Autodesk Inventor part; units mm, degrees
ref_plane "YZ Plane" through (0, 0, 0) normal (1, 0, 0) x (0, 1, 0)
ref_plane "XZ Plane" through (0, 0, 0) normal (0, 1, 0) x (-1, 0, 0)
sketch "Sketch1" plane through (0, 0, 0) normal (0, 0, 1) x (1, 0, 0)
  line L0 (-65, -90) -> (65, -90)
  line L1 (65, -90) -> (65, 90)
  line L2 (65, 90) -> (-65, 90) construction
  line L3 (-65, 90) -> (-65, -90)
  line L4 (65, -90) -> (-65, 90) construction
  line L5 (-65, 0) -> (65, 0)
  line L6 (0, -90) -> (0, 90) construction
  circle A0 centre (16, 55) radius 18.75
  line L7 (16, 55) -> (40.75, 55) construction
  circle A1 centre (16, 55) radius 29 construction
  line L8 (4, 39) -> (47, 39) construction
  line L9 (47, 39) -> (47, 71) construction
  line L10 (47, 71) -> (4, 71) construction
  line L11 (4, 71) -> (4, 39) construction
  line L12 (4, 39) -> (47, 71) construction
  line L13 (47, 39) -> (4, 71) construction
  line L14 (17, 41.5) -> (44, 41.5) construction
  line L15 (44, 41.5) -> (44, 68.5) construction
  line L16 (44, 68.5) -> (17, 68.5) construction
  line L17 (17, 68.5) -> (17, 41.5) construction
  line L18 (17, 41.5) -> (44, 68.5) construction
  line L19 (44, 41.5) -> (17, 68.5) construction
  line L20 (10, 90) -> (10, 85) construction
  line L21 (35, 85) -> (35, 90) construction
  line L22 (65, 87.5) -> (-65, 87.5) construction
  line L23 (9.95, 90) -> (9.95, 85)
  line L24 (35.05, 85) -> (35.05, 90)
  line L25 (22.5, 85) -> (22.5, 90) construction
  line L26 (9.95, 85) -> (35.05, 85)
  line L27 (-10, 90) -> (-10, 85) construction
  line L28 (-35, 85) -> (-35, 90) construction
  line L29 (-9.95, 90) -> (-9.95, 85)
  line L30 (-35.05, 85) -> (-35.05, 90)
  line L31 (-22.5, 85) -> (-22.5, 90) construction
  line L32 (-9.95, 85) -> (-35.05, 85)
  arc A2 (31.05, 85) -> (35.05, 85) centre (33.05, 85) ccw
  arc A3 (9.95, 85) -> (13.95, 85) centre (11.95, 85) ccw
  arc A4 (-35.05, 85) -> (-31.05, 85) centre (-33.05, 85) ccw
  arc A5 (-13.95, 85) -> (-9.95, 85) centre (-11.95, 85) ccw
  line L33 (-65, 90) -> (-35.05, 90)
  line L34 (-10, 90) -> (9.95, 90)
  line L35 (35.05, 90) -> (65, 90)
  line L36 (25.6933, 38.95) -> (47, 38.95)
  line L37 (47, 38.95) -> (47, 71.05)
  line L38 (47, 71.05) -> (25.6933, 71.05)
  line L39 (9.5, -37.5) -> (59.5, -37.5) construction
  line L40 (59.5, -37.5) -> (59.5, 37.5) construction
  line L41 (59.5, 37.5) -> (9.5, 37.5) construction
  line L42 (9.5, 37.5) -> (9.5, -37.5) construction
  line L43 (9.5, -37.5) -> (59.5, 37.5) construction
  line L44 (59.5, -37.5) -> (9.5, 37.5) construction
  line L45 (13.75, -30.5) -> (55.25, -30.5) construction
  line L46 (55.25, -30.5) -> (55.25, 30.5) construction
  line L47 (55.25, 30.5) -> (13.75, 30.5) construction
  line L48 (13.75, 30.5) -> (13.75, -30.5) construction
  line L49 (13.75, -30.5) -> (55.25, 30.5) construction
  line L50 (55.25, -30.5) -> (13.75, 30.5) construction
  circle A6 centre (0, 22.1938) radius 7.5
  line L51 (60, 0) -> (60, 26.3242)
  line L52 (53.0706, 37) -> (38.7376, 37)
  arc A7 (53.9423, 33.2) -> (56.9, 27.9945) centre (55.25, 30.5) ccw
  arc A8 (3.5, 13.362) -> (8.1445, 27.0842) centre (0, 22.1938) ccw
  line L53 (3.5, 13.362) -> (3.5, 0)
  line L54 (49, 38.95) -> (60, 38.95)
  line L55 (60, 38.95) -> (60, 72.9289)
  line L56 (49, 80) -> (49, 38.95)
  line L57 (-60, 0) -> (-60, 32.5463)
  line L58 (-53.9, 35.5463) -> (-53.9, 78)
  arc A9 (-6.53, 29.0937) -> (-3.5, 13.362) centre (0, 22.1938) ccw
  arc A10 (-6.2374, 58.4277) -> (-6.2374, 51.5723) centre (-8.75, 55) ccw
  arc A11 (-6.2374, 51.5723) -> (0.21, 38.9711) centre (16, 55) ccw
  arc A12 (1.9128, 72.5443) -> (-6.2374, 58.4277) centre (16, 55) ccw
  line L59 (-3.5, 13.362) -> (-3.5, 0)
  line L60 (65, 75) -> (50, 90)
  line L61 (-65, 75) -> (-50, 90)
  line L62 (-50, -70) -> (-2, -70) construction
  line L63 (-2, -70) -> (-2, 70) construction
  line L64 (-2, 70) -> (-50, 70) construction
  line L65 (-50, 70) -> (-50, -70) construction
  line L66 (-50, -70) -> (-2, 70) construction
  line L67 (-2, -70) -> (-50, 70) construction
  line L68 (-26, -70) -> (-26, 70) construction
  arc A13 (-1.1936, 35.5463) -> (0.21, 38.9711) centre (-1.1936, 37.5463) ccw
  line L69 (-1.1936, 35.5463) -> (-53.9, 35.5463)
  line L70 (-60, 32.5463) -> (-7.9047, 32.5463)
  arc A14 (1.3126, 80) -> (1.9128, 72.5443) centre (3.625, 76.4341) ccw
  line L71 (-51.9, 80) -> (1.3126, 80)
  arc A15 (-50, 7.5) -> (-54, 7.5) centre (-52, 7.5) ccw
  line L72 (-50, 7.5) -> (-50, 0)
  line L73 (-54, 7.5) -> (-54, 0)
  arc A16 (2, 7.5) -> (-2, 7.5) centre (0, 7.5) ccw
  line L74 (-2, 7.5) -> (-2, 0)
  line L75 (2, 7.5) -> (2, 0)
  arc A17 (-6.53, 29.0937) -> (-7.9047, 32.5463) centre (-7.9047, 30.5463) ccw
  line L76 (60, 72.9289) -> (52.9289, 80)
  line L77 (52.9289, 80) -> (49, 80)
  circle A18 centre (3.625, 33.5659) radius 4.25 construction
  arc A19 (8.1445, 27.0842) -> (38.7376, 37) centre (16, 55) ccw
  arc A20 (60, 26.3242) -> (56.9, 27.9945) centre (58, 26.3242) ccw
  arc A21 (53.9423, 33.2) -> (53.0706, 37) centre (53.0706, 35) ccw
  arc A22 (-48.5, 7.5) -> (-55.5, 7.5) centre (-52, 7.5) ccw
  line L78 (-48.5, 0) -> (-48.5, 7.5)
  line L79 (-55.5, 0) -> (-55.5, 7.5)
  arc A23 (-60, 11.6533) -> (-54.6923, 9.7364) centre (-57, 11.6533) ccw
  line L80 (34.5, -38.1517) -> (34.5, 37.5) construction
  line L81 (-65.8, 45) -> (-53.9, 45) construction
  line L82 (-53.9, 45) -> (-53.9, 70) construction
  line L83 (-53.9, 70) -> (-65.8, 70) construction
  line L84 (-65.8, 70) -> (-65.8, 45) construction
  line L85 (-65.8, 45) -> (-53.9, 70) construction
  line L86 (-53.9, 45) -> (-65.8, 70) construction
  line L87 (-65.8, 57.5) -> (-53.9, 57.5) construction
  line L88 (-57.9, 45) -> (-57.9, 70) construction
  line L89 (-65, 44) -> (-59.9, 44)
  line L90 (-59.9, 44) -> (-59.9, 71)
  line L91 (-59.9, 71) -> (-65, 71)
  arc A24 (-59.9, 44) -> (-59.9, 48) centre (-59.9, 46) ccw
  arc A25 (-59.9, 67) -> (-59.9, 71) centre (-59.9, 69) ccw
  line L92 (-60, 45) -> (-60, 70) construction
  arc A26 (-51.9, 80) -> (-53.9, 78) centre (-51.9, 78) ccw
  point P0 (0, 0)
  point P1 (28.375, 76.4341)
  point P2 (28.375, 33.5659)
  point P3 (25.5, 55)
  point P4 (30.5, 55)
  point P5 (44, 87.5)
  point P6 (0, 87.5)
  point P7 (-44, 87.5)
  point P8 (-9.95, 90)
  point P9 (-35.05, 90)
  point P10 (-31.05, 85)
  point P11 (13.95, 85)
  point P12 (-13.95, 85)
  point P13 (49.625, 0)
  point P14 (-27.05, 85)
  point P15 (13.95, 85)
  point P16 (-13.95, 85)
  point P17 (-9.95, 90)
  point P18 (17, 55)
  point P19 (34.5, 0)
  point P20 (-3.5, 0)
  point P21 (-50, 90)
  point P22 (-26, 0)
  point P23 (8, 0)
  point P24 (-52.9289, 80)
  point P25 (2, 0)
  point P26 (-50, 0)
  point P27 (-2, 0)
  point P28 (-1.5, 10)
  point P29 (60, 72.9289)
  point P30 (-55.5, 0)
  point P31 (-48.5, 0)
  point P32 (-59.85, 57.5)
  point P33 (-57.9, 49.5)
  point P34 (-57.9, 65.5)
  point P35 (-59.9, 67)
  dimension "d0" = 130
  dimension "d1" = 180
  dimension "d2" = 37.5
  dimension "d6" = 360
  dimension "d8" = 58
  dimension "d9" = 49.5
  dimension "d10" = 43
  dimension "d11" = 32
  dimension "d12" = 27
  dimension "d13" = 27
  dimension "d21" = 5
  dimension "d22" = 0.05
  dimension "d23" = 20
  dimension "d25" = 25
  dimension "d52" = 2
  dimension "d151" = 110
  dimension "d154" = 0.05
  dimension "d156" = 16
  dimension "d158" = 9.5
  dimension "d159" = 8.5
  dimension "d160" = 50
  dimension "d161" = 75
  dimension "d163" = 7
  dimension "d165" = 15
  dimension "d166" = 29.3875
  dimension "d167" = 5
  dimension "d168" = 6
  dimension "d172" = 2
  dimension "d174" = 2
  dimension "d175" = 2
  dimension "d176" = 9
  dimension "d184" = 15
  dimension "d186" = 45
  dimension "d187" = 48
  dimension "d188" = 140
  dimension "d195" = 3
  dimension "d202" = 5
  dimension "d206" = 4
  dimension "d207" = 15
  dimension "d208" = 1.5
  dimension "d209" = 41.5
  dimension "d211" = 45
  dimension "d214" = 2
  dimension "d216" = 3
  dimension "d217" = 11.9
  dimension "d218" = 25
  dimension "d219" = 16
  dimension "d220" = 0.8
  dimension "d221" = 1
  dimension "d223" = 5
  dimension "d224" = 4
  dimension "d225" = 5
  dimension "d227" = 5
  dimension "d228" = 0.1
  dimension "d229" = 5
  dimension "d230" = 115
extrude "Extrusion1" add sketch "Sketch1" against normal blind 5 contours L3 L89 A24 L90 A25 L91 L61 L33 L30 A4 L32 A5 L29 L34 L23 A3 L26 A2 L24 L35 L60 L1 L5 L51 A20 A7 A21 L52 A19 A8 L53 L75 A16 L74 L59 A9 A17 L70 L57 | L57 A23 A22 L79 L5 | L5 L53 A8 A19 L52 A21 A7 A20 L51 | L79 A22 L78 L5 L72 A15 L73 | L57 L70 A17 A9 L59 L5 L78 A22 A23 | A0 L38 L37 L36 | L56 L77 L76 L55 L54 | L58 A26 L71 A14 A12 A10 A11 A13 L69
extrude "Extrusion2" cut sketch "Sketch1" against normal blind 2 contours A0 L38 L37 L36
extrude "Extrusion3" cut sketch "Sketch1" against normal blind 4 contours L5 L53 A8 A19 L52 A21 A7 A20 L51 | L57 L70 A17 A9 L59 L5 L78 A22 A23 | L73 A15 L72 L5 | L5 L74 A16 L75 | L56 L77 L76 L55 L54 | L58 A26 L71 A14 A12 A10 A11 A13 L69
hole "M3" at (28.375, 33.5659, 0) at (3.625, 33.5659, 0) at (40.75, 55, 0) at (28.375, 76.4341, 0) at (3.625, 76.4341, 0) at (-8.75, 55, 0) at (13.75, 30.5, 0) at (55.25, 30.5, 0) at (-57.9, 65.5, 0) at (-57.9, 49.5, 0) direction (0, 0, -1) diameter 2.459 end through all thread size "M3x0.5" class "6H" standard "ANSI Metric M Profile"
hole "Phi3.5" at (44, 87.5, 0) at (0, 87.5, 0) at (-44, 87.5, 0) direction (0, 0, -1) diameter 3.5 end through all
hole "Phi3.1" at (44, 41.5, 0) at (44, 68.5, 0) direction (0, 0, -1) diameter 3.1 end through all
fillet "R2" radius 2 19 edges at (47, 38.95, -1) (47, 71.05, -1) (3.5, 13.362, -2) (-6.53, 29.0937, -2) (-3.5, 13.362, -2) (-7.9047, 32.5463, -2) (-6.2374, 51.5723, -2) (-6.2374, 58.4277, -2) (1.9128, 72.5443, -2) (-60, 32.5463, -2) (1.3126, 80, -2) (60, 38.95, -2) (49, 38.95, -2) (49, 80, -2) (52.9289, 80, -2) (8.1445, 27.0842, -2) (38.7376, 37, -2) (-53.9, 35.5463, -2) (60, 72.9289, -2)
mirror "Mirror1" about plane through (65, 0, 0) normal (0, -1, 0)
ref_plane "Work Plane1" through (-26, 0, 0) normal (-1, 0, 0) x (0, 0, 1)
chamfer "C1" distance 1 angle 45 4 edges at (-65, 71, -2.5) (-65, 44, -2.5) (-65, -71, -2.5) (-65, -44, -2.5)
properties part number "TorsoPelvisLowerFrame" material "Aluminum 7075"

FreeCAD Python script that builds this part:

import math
import FreeCAD as App
import Part
import Sketcher
from FreeCAD import Vector
Q = App.Units.Quantity


def edges_at(feature, points):
    """Names of the edges that pass closest to the given points."""
    edges = feature.Shape.Edges
    near = lambda p: min(range(len(edges)), key=lambda i: edges[i].distToShape(Part.Vertex(*p))[0])
    return sorted({f"Edge{near(p) + 1}" for p in points})


def add_polygon(sketch, points):
    """Adds a closed chain of lines whose ends are joined by coincident constraints."""
    first, n = sketch.GeometryCount, len(points)
    for a, b in zip(points, points[1:] + points[:1]):
        sketch.addGeometry(Part.LineSegment(App.Vector(*a, 0), App.Vector(*b, 0)), False)
    for i in range(n):
        sketch.addConstraint(Sketcher.Constraint("Coincident", first + i, 2, first + (i + 1) % n, 1))

doc = App.newDocument("Part")
body = doc.addObject("PartDesign::Body", "Body")

# Sketch on XY plane
sketch1 = body.newObject("Sketcher::SketchObject", "Sketch")
sketch1.AttachmentSupport = (doc.getObject("XY_Plane"), [""])
sketch1.MapMode = "FlatFace"
sketch1.addGeometry([
    Part.LineSegment(Vector(-65, 44, 0), Vector(-65, 0, 0)),  # 0
    Part.LineSegment(Vector(-65, 0, 0), Vector(-54, 0, 0)),  # 1
    Part.LineSegment(Vector(-54, 0, 0), Vector(-54, 7.5, 0)),  # 2
    Part.ArcOfCircle(Part.Circle(Vector(-52, 7.5, 0), Vector(0, 0, 1), 2), math.radians(0), math.radians(180)),  # 3
    Part.LineSegment(Vector(-50, 7.5, 0), Vector(-50, 0, 0)),  # 4
    Part.LineSegment(Vector(-50, 0, 0), Vector(-2, 0, 0)),  # 5
    Part.LineSegment(Vector(-2, 0, 0), Vector(-2, 7.5, 0)),  # 6
    Part.ArcOfCircle(Part.Circle(Vector(0, 7.5, 0), Vector(0, 0, 1), 2), math.radians(0), math.radians(180)),  # 7
    Part.LineSegment(Vector(2, 7.5, 0), Vector(2, 0, 0)),  # 8
    Part.LineSegment(Vector(2, 0, 0), Vector(65, 0, 0)),  # 9
    Part.LineSegment(Vector(65, 0, 0), Vector(65, 75, 0)),  # 10
    Part.LineSegment(Vector(65, 75, 0), Vector(50, 90, 0)),  # 11
    Part.LineSegment(Vector(50, 90, 0), Vector(35, 90, 0)),  # 12
    Part.LineSegment(Vector(35, 90, 0), Vector(35, 85, 0)),  # 13
    Part.ArcOfCircle(Part.Circle(Vector(33, 85, 0), Vector(0, 0, 1), 2), math.radians(180), math.radians(360)),  # 14
    Part.LineSegment(Vector(31.1, 85, 0), Vector(13.9, 85, 0)),  # 15
    Part.ArcOfCircle(Part.Circle(Vector(11.9, 85, 0), Vector(0, 0, 1), 2), math.radians(180), math.radians(360)),  # 16
    Part.LineSegment(Vector(9.9, 85, 0), Vector(9.9, 90, 0)),  # 17
    Part.LineSegment(Vector(9.9, 90, 0), Vector(-9.9, 90, 0)),  # 18
    Part.LineSegment(Vector(-9.9, 90, 0), Vector(-9.9, 85, 0)),  # 19
    Part.ArcOfCircle(Part.Circle(Vector(-11.9, 85, 0), Vector(0, 0, 1), 2), math.radians(180), math.radians(360)),  # 20
    Part.LineSegment(Vector(-13.9, 85, 0), Vector(-31.1, 85, 0)),  # 21
    Part.ArcOfCircle(Part.Circle(Vector(-33, 85, 0), Vector(0, 0, 1), 2), math.radians(180), math.radians(360)),  # 22
    Part.LineSegment(Vector(-35, 85, 0), Vector(-35, 90, 0)),  # 23
    Part.LineSegment(Vector(-35, 90, 0), Vector(-50, 90, 0)),  # 24
    Part.LineSegment(Vector(-50, 90, 0), Vector(-65, 75, 0)),  # 25
    Part.LineSegment(Vector(-65, 75, 0), Vector(-65, 71, 0)),  # 26
    Part.LineSegment(Vector(-65, 71, 0), Vector(-59.9, 71, 0)),  # 27
    Part.ArcOfCircle(Part.Circle(Vector(-59.9, 69, 0), Vector(0, 0, 1), 2), math.radians(-90), math.radians(90)),  # 28
    Part.LineSegment(Vector(-59.9, 67, 0), Vector(-59.9, 48, 0)),  # 29
    Part.ArcOfCircle(Part.Circle(Vector(-59.9, 46, 0), Vector(0, 0, 1), 2), math.radians(-90), math.radians(90)),  # 30
    Part.LineSegment(Vector(-59.9, 44, 0), Vector(-65, 44, 0)),  # 31
    Part.Circle(Vector(0, 22.2, 0), Vector(0, 0, 1), 7.5),  # 32
    Part.Circle(Vector(16, 55, 0), Vector(0, 0, 1), 18.8),  # 33
], False)
sketch1.addConstraint([
    Sketcher.Constraint("Coincident", 0, 2, 1, 1),
    Sketcher.Constraint("Coincident", 1, 2, 2, 1),
    Sketcher.Constraint("Tangent", 2, 2, 3, 2),
    Sketcher.Constraint("Tangent", 3, 1, 4, 1),
    Sketcher.Constraint("Coincident", 4, 2, 5, 1),
    Sketcher.Constraint("Coincident", 5, 2, 6, 1),
    Sketcher.Constraint("Tangent", 6, 2, 7, 2),
    Sketcher.Constraint("Tangent", 7, 1, 8, 1),
    Sketcher.Constraint("Coincident", 8, 2, 9, 1),
    Sketcher.Constraint("Coincident", 9, 2, 10, 1),
    Sketcher.Constraint("Coincident", 10, 2, 11, 1),
    Sketcher.Constraint("Coincident", 11, 2, 12, 1),
    Sketcher.Constraint("Coincident", 12, 2, 13, 1),
    Sketcher.Constraint("Tangent", 13, 2, 14, 2),
    Sketcher.Constraint("Coincident", 14, 1, 15, 1),
    Sketcher.Constraint("Coincident", 15, 2, 16, 2),
    Sketcher.Constraint("Tangent", 16, 1, 17, 1),
    Sketcher.Constraint("Coincident", 17, 2, 18, 1),
    Sketcher.Constraint("Coincident", 18, 2, 19, 1),
    Sketcher.Constraint("Tangent", 19, 2, 20, 2),
    Sketcher.Constraint("Coincident", 20, 1, 21, 1),
    Sketcher.Constraint("Coincident", 21, 2, 22, 2),
    Sketcher.Constraint("Tangent", 22, 1, 23, 1),
    Sketcher.Constraint("Coincident", 23, 2, 24, 1),
    Sketcher.Constraint("Coincident", 24, 2, 25, 1),
    Sketcher.Constraint("Coincident", 25, 2, 26, 1),
    Sketcher.Constraint("Coincident", 26, 2, 27, 1),
    Sketcher.Constraint("Tangent", 27, 2, 28, 2),
    Sketcher.Constraint("Coincident", 28, 1, 29, 1),
    Sketcher.Constraint("Coincident", 29, 2, 30, 2),
    Sketcher.Constraint("Tangent", 30, 1, 31, 1),
    Sketcher.Constraint("Coincident", 31, 2, 0, 1),
    Sketcher.Constraint("Vertical", 0),
    Sketcher.Constraint("Horizontal", 1),
    Sketcher.Constraint("Vertical", 2),
    Sketcher.Constraint("Vertical", 4),
    Sketcher.Constraint("Horizontal", 5),
    Sketcher.Constraint("Vertical", 6),
    Sketcher.Constraint("Vertical", 8),
    Sketcher.Constraint("Horizontal", 9),
    Sketcher.Constraint("Vertical", 10),
    Sketcher.Constraint("Horizontal", 12),
    Sketcher.Constraint("Vertical", 13),
    Sketcher.Constraint("Horizontal", 15),
    Sketcher.Constraint("Vertical", 17),
    Sketcher.Constraint("Horizontal", 18),
    Sketcher.Constraint("Vertical", 19),
    Sketcher.Constraint("Horizontal", 21),
    Sketcher.Constraint("Vertical", 23),
    Sketcher.Constraint("Horizontal", 24),
    Sketcher.Constraint("Vertical", 26),
    Sketcher.Constraint("Horizontal", 27),
    Sketcher.Constraint("Vertical", 29),
    Sketcher.Constraint("Horizontal", 31),
    Sketcher.Constraint("Equal", 3, 7),
    Sketcher.Constraint("Equal", 7, 14),
    Sketcher.Constraint("Equal", 14, 16),
    Sketcher.Constraint("Equal", 16, 20),
    Sketcher.Constraint("Equal", 20, 22),
    Sketcher.Constraint("Equal", 22, 28),
    Sketcher.Constraint("Equal", 28, 30),
    Sketcher.Constraint("Symmetric", 5, 2, 8, 2, -1, 1),
    Sketcher.Constraint("Symmetric", 0, 2, 9, 2, -1, 1),
    Sketcher.Constraint("Symmetric", 16, 3, 20, 3, -2),
    Sketcher.Constraint("Symmetric", 14, 3, 22, 3, -2),
    Sketcher.Constraint("Symmetric", 11, 2, 24, 2, -2),
    Sketcher.Constraint("Symmetric", 10, 2, 25, 2, -2),
    Sketcher.Constraint("PointOnObject", 32, 3, -2),
    Sketcher.Constraint("PointOnObject", 0, 2, -1),
    Sketcher.Constraint("Perpendicular", 11, 25),
    Sketcher.Constraint("Horizontal", 3, 3, 7, 3),
    Sketcher.Constraint("Horizontal", 14, 3, 16, 3),
    Sketcher.Constraint("Horizontal", 13, 2, 14, 1),
    Sketcher.Constraint("Horizontal", 12, 2, 17, 2),
    Sketcher.Constraint("Horizontal", 19, 2, 20, 1),
    Sketcher.Constraint("Vertical", 28, 3, 30, 3),
    Sketcher.Constraint("Vertical", 4, 2, 24, 2),
    Sketcher.Constraint("Vertical", 27, 2, 28, 1),
    Sketcher.Constraint("Diameter", 32, Q("15 mm")),
    Sketcher.Constraint("Radius", 3, Q("2 mm")),
    Sketcher.Constraint("Diameter", 33, Q("37.5 mm")),
    Sketcher.Constraint("DistanceX", 5, 1, 5, 2, Q("48 mm")),
    Sketcher.Constraint("DistanceY", 10, 1, 10, 2, Q("75 mm")),
    Sketcher.Constraint("DistanceY", 13, 2, 13, 1, Q("5 mm")),
    Sketcher.Constraint("DistanceY", 26, 2, 26, 1, Q("4 mm")),
    Sketcher.Constraint("DistanceX", -1, 1, 33, 3, Q("16 mm")),
    Sketcher.Constraint("DistanceY", -1, 1, 29, 2, Q("48 mm")),
    Sketcher.Constraint("DistanceX", 20, 3, 14, 3, Q("45 mm")),
    Sketcher.Constraint("DistanceY", 28, 3, 22, 3, Q("16 mm")),
    Sketcher.Constraint("DistanceY", 33, 3, 10, 2, Q("20 mm")),
    Sketcher.Constraint("DistanceX", 15, 2, 15, 1, Q("17.1 mm")),
    Sketcher.Constraint("DistanceX", 27, 1, 27, 2, Q("5.1 mm")),
    Sketcher.Constraint("DistanceY", 2, 1, 2, 2, Q("7.5 mm")),
    Sketcher.Constraint("DistanceY", -1, 1, 32, 3, Q("22.1938 mm")),
])
pad1 = body.newObject("PartDesign::Pad", "Pad")
pad1.Profile = sketch1
pad1.Length = 5
pad1.Reversed = True

# Sketch on XY plane
sketch2 = body.newObject("Sketcher::SketchObject", "Sketch001")
sketch2.AttachmentSupport = (doc.getObject("XY_Plane"), [""])
sketch2.MapMode = "FlatFace"
sketch2.addGeometry([
    Part.ArcOfCircle(Part.Circle(Vector(16, 55, 0), Vector(0, 0, 1), 19), math.radians(-59), math.radians(59)),
    Part.LineSegment(Vector(26, 39, 0), Vector(47, 39, 0)),
    Part.LineSegment(Vector(47, 39, 0), Vector(47, 71, 0)),
    Part.LineSegment(Vector(47, 71, 0), Vector(26, 71, 0)),
], False)
sketch2.addConstraint([
    Sketcher.Constraint("Coincident", 0, 1, 1, 1),
    Sketcher.Constraint("Coincident", 1, 2, 2, 1),
    Sketcher.Constraint("Coincident", 2, 2, 3, 1),
    Sketcher.Constraint("Coincident", 3, 2, 0, 2),
    Sketcher.Constraint("Horizontal", 1),
    Sketcher.Constraint("Vertical", 2),
    Sketcher.Constraint("Horizontal", 3),
    Sketcher.Constraint("Vertical", 0, 1, 3, 2),
    Sketcher.Constraint("Radius", 0, Q("18.75 mm")),
    Sketcher.Constraint("DistanceX", -1, 1, 0, 3, Q("16 mm")),
    Sketcher.Constraint("DistanceY", 2, 1, 2, 2, Q("32.1 mm")),
    Sketcher.Constraint("DistanceY", -1, 1, 0, 3, Q("55 mm")),
    Sketcher.Constraint("DistanceX", -1, 1, 1, 2, Q("47 mm")),
])
pocket1 = body.newObject("PartDesign::Pocket", "Pocket")
pocket1.Profile = sketch2
pocket1.Length = 2

# Sketch on XY plane
sketch3 = body.newObject("Sketcher::SketchObject", "Sketch002")
sketch3.AttachmentSupport = (doc.getObject("XY_Plane"), [""])
sketch3.MapMode = "FlatFace"
sketch3.addGeometry(Part.LineSegment(Vector(3.5, 0, 0), Vector(60, 0, 0)), False)  # 0
sketch3.addGeometry(Part.LineSegment(Vector(60, 0, 0), Vector(60, 26.3, 0)), False)  # 1
sketch3.addGeometry(Part.ArcOfCircle(Part.Circle(Vector(58, 26.3, 0), Vector(0, 0, 1), 2), math.radians(0), math.radians(123)), False)  # 2
sketch3.addGeometry(Part.ArcOfCircle(Part.Circle(Vector(55.2, 30.5, 0), Vector(0, 0, 1), 3), math.radians(116), math.radians(303)), False)  # 3
sketch3.addGeometry(Part.ArcOfCircle(Part.Circle(Vector(53.1, 35, 0), Vector(0, 0, 1), 2), math.radians(-64), math.radians(90)), False)  # 4
sketch3.addGeometry(Part.LineSegment(Vector(53.1, 37, 0), Vector(38.7, 37, 0)), False)  # 5
sketch3.addGeometry(Part.ArcOfCircle(Part.Circle(Vector(16, 55, 0), Vector(0, 0, 1), 29), math.radians(-106), math.radians(-38)), False)  # 6
sketch3.addGeometry(Part.ArcOfCircle(Part.Circle(Vector(0, 22.2, 0), Vector(0, 0, 1), 9.5), math.radians(-68), math.radians(31)), False)  # 7
sketch3.addGeometry(Part.LineSegment(Vector(3.5, 13.4, 0), Vector(3.5, 0, 0)), False)  # 8
sketch3.addGeometry(Part.LineSegment(Vector(-60, 32.5, 0), Vector(-60, 11.7, 0)), False)  # 9
sketch3.addGeometry(Part.ArcOfCircle(Part.Circle(Vector(-57, 11.7, 0), Vector(0, 0, 1), 3), math.radians(180), math.radians(320)), False)  # 10
sketch3.addGeometry(Part.ArcOfCircle(Part.Circle(Vector(-52, 7.5, 0), Vector(0, 0, 1), 3.5), math.radians(0), math.radians(140)), False)  # 11
sketch3.addGeometry(Part.LineSegment(Vector(-48.5, 7.5, 0), Vector(-48.5, 0, 0)), False)  # 12
sketch3.addGeometry(Part.LineSegment(Vector(-48.5, 0, 0), Vector(-3.5, 0, 0)), False)  # 13
sketch3.addGeometry(Part.LineSegment(Vector(-3.5, 0, 0), Vector(-3.5, 13.4, 0)), False)  # 14
sketch3.addGeometry(Part.ArcOfCircle(Part.Circle(Vector(0, 22.2, 0), Vector(0, 0, 1), 9.5), math.radians(133), math.radians(248)), False)  # 15
sketch3.addGeometry(Part.ArcOfCircle(Part.Circle(Vector(-7.9, 30.5, 0), Vector(0, 0, 1), 2), math.radians(-47), math.radians(90)), False)  # 16
sketch3.addGeometry(Part.LineSegment(Vector(-7.9, 32.5, 0), Vector(-60, 32.5, 0)), False)  # 17
sketch3.addGeometry(Part.LineSegment(Vector(-54, 7.5, 0), Vector(-54, 0, 0)), False)  # 18
sketch3.addGeometry(Part.LineSegment(Vector(-54, 0, 0), Vector(-50, 0, 0)), False)  # 19
sketch3.addGeometry(Part.LineSegment(Vector(-50, 0, 0), Vector(-50, 7.5, 0)), False)  # 20
sketch3.addGeometry(Part.ArcOfCircle(Part.Circle(Vector(-52, 7.5, 0), Vector(0, 0, 1), 2), math.radians(0), math.radians(180)), False)  # 21
sketch3.addGeometry(Part.LineSegment(Vector(-2, 0, 0), Vector(2, 0, 0)), False)  # 22
sketch3.addGeometry(Part.LineSegment(Vector(2, 0, 0), Vector(2, 7.5, 0)), False)  # 23
sketch3.addGeometry(Part.ArcOfCircle(Part.Circle(Vector(0, 7.5, 0), Vector(0, 0, 1), 2), math.radians(0), math.radians(180)), False)  # 24
sketch3.addGeometry(Part.LineSegment(Vector(-2, 7.5, 0), Vector(-2, 0, 0)), False)  # 25
add_polygon(sketch3, [(49, 80), (49, 39), (60, 39), (60, 72.9), (52.9, 80)])  # lines 26-30
sketch3.addGeometry(Part.LineSegment(Vector(-53.9, 78, 0), Vector(-53.9, 35.5, 0)), False)  # 31
sketch3.addGeometry(Part.LineSegment(Vector(-53.9, 35.5, 0), Vector(-1.2, 35.5, 0)), False)  # 32
sketch3.addGeometry(Part.ArcOfCircle(Part.Circle(Vector(-1.2, 37.5, 0), Vector(0, 0, 1), 2), math.radians(-90), math.radians(45)), False)  # 33
sketch3.addGeometry(Part.ArcOfCircle(Part.Circle(Vector(16, 55, 0), Vector(0, 0, 1), 22.5), math.radians(-171), math.radians(-135)), False)  # 34
sketch3.addGeometry(Part.ArcOfCircle(Part.Circle(Vector(-8.8, 55, 0), Vector(0, 0, 1), 4.2), math.radians(54), math.radians(306)), False)  # 35
sketch3.addGeometry(Part.ArcOfCircle(Part.Circle(Vector(16, 55, 0), Vector(0, 0, 1), 22.5), math.radians(129), math.radians(171)), False)  # 36
sketch3.addGeometry(Part.ArcOfCircle(Part.Circle(Vector(3.6, 76.4, 0), Vector(0, 0, 1), 4.3), math.radians(123), math.radians(246)), False)  # 37
sketch3.addGeometry(Part.LineSegment(Vector(1.3, 80, 0), Vector(-51.9, 80, 0)), False)  # 38
sketch3.addGeometry(Part.ArcOfCircle(Part.Circle(Vector(-51.9, 78, 0), Vector(0, 0, 1), 2), math.radians(90), math.radians(180)), False)  # 39
sketch3.addConstraint([
    Sketcher.Constraint("Coincident", 0, 2, 1, 1),
    Sketcher.Constraint("Tangent", 1, 2, 2, 1),
    Sketcher.Constraint("Tangent", 2, 2, 3, 2),
    Sketcher.Constraint("Tangent", 3, 1, 4, 1),
    Sketcher.Constraint("Tangent", 4, 2, 5, 1),
    Sketcher.Constraint("Coincident", 5, 2, 6, 2),
    Sketcher.Constraint("Coincident", 6, 1, 7, 2),
    Sketcher.Constraint("Coincident", 7, 1, 8, 1),
    Sketcher.Constraint("Coincident", 8, 2, 0, 1),
    Sketcher.Constraint("Tangent", 9, 2, 10, 1),
    Sketcher.Constraint("Tangent", 10, 2, 11, 2),
    Sketcher.Constraint("Tangent", 11, 1, 12, 1),
    Sketcher.Constraint("Coincident", 12, 2, 13, 1),
    Sketcher.Constraint("Coincident", 13, 2, 14, 1),
    Sketcher.Constraint("Coincident", 14, 2, 15, 2),
    Sketcher.Constraint("Tangent", 15, 1, 16, 1),
    Sketcher.Constraint("Tangent", 16, 2, 17, 1),
    Sketcher.Constraint("Coincident", 17, 2, 9, 1),
    Sketcher.Constraint("Coincident", 18, 2, 19, 1),
    Sketcher.Constraint("Coincident", 19, 2, 20, 1),
    Sketcher.Constraint("Tangent", 20, 2, 21, 1),
    Sketcher.Constraint("Tangent", 21, 2, 18, 1),
    Sketcher.Constraint("Coincident", 22, 2, 23, 1),
    Sketcher.Constraint("Tangent", 23, 2, 24, 1),
    Sketcher.Constraint("Tangent", 24, 2, 25, 1),
    Sketcher.Constraint("Coincident", 25, 2, 22, 1),
    Sketcher.Constraint("Coincident", 31, 2, 32, 1),
    Sketcher.Constraint("Tangent", 32, 2, 33, 1),
    Sketcher.Constraint("Tangent", 33, 2, 34, 2),
    Sketcher.Constraint("Coincident", 34, 1, 35, 2),
    Sketcher.Constraint("Coincident", 35, 1, 36, 2),
    Sketcher.Constraint("Coincident", 36, 1, 37, 2),
    Sketcher.Constraint("Coincident", 37, 1, 38, 1),
    Sketcher.Constraint("Tangent", 38, 2, 39, 1),
    Sketcher.Constraint("Tangent", 39, 2, 31, 1),
    Sketcher.Constraint("Horizontal", 0),
    Sketcher.Constraint("Vertical", 1),
    Sketcher.Constraint("Horizontal", 5),
    Sketcher.Constraint("Vertical", 8),
    Sketcher.Constraint("Vertical", 9),
    Sketcher.Constraint("Vertical", 12),
    Sketcher.Constraint("Horizontal", 13),
    Sketcher.Constraint("Vertical", 14),
    Sketcher.Constraint("Horizontal", 17),
    Sketcher.Constraint("Vertical", 18),
    Sketcher.Constraint("Horizontal", 19),
    Sketcher.Constraint("Vertical", 20),
    Sketcher.Constraint("Horizontal", 22),
    Sketcher.Constraint("Vertical", 23),
    Sketcher.Constraint("Vertical", 25),
    Sketcher.Constraint("Vertical", 26),
    Sketcher.Constraint("Horizontal", 27),
    Sketcher.Constraint("Vertical", 28),
    Sketcher.Constraint("Horizontal", 30),
    Sketcher.Constraint("Vertical", 31),
    Sketcher.Constraint("Horizontal", 32),
    Sketcher.Constraint("Horizontal", 38),
    Sketcher.Constraint("Coincident", 15, 3, 7, 3),
    Sketcher.Constraint("Coincident", 21, 3, 11, 3),
    Sketcher.Constraint("Coincident", 34, 3, 6, 3),
    Sketcher.Constraint("Coincident", 36, 3, 6, 3),
    Sketcher.Constraint("Equal", 2, 4),
    Sketcher.Constraint("Equal", 3, 10),
    Sketcher.Constraint("Equal", 7, 15),
    Sketcher.Constraint("Equal", 4, 16),
    Sketcher.Constraint("Equal", 16, 21),
    Sketcher.Constraint("Equal", 21, 24),
    Sketcher.Constraint("Equal", 24, 33),
    Sketcher.Constraint("Equal", 34, 36),
    Sketcher.Constraint("Equal", 35, 37),
    Sketcher.Constraint("Equal", 33, 39),
    Sketcher.Constraint("Symmetric", 8, 2, 13, 2, -1, 1),
    Sketcher.Constraint("Symmetric", 22, 2, 25, 2, -1, 1),
    Sketcher.Constraint("PointOnObject", 7, 3, -2),
    Sketcher.Constraint("PointOnObject", 0, 2, -1),
    Sketcher.Constraint("PointOnObject", 18, 2, -1),
    Sketcher.Constraint("Horizontal", 21, 3, 24, 3),
    Sketcher.Constraint("Horizontal", 34, 3, 35, 3),
    Sketcher.Constraint("Horizontal", 30, 2, 37, 1),
    Sketcher.Constraint("Vertical", 1, 2, 27, 2),
    Sketcher.Constraint("Radius", 2, Q("2 mm")),
    Sketcher.Constraint("Radius", 3, Q("3 mm")),
    Sketcher.Constraint("Radius", 6, Q("29 mm")),
    Sketcher.Constraint("Radius", 7, Q("9.5 mm")),
    Sketcher.Constraint("Radius", 11, Q("3.5 mm")),
    Sketcher.Constraint("Radius", 34, Q("22.5 mm")),
    Sketcher.Constraint("DistanceX", 13, 1, 13, 2, Q("45 mm")),
    Sketcher.Constraint("Radius", 35, Q("4.25 mm")),
    Sketcher.Constraint("DistanceX", -1, 1, 2, 3, Q("58 mm")),
    Sketcher.Constraint("DistanceX", -1, 1, 6, 3, Q("16 mm")),
    Sketcher.Constraint("DistanceX", 19, 2, -1, 1, Q("50 mm")),
    Sketcher.Constraint("DistanceY", 4, 3, 6, 3, Q("20 mm")),
    Sketcher.Constraint("DistanceX", 10, 3, 2, 3, Q("115 mm")),
    Sketcher.Constraint("DistanceY", 16, 3, 33, 3, Q("7 mm")),
    Sketcher.Constraint("DistanceY", 4, 2, 29, 2, Q("43 mm")),
    Sketcher.Constraint("DistanceX", 21, 2, 31, 2, Q("0.1 mm")),
    Sketcher.Constraint("DistanceX", 27, 1, 27, 2, Q("11 mm")),
    Sketcher.Constraint("Angle", 29, Q("135 deg")),
    Sketcher.Constraint("Distance", 29, Q("10 mm")),
    Sketcher.Constraint("DistanceY", 12, 2, 12, 1, Q("7.5 mm")),
    Sketcher.Constraint("DistanceY", -1, 1, 4, 3, Q("35 mm")),
    Sketcher.Constraint("DistanceY", 11, 3, 3, 3, Q("23 mm")),
    Sketcher.Constraint("DistanceY", 26, 2, 26, 1, Q("41.05 mm")),
    Sketcher.Constraint("DistanceX", -1, 1, 2, 2, Q("56.9 mm")),
    Sketcher.Constraint("DistanceY", 7, 3, 15, 1, Q("6.9 mm")),
    Sketcher.Constraint("DistanceY", 8, 2, 8, 1, Q("13.362 mm")),
    Sketcher.Constraint("DistanceX", 35, 3, -1, 1, Q("8.75 mm")),
    Sketcher.Constraint("DistanceX", 35, 1, 37, 1, Q("7.55 mm")),
    Sketcher.Constraint("DistanceX", -1, 1, 37, 3, Q("3.625 mm")),
])
pocket2 = body.newObject("PartDesign::Pocket", "Pocket001")
pocket2.Profile = sketch3
pocket2.Length = 4

# Sketch on XY plane
sketch4 = body.newObject("Sketcher::SketchObject", "Sketch003")
sketch4.AttachmentSupport = (doc.getObject("XY_Plane"), [""])
sketch4.MapMode = "FlatFace"
sketch4.addGeometry([
    Part.Circle(Vector(28.4, 33.6, 0), Vector(0, 0, 1), 1.2),  # 0
    Part.Circle(Vector(3.6, 33.6, 0), Vector(0, 0, 1), 1.2),  # 1
    Part.Circle(Vector(40.8, 55, 0), Vector(0, 0, 1), 1.2),  # 2
    Part.Circle(Vector(28.4, 76.4, 0), Vector(0, 0, 1), 1.2),  # 3
    Part.Circle(Vector(3.6, 76.4, 0), Vector(0, 0, 1), 1.2),  # 4
    Part.Circle(Vector(-8.8, 55, 0), Vector(0, 0, 1), 1.2),  # 5
    Part.Circle(Vector(13.8, 30.5, 0), Vector(0, 0, 1), 1.2),  # 6
    Part.Circle(Vector(55.2, 30.5, 0), Vector(0, 0, 1), 1.2),  # 7
    Part.Circle(Vector(-57.9, 65.5, 0), Vector(0, 0, 1), 1.2),  # 8
    Part.Circle(Vector(-57.9, 49.5, 0), Vector(0, 0, 1), 1.2),  # 9
], False)
sketch4.addConstraint([
    Sketcher.Constraint("Equal", 0, 1),
    Sketcher.Constraint("Equal", 1, 2),
    Sketcher.Constraint("Equal", 2, 3),
    Sketcher.Constraint("Equal", 3, 4),
    Sketcher.Constraint("Equal", 4, 5),
    Sketcher.Constraint("Equal", 5, 6),
    Sketcher.Constraint("Equal", 6, 7),
    Sketcher.Constraint("Equal", 7, 8),
    Sketcher.Constraint("Equal", 8, 9),
    Sketcher.Constraint("Horizontal", 0, 3, 1, 3),
    Sketcher.Constraint("Horizontal", 3, 3, 4, 3),
    Sketcher.Constraint("Horizontal", 2, 3, 5, 3),
    Sketcher.Constraint("Horizontal", 6, 3, 7, 3),
    Sketcher.Constraint("Vertical", 0, 3, 3, 3),
    Sketcher.Constraint("Vertical", 1, 3, 4, 3),
    Sketcher.Constraint("Vertical", 8, 3, 9, 3),
    Sketcher.Constraint("Diameter", 0, Q("2.459 mm")),
    Sketcher.Constraint("DistanceY", -1, 1, 2, 3, Q("55 mm")),
    Sketcher.Constraint("DistanceX", 6, 3, 2, 3, Q("27 mm")),
    Sketcher.Constraint("DistanceY", 6, 3, 8, 3, Q("35 mm")),
    Sketcher.Constraint("DistanceY", 9, 3, 8, 3, Q("16 mm")),
    Sketcher.Constraint("DistanceY", -1, 1, 6, 3, Q("30.5 mm")),
    Sketcher.Constraint("DistanceX", 8, 3, -1, 1, Q("57.9 mm")),
    Sketcher.Constraint("DistanceX", 5, 3, 2, 3, Q("49.5 mm")),
    Sketcher.Constraint("DistanceX", 2, 3, 7, 3, Q("14.5 mm")),
    Sketcher.Constraint("DistanceX", -1, 1, 2, 3, Q("40.75 mm")),
    Sketcher.Constraint("DistanceX", 1, 3, 0, 3, Q("24.75 mm")),
    Sketcher.Constraint("DistanceX", -1, 1, 0, 3, Q("28.375 mm")),
    Sketcher.Constraint("DistanceY", -1, 1, 0, 3, Q("33.566 mm")),
    Sketcher.Constraint("DistanceY", -1, 1, 3, 3, Q("76.434 mm")),
])
doc.recompute()
hole = body.newObject("PartDesign::Hole", "Hole")
hole.Profile = sketch4
hole.ThreadType = "None"
hole.Diameter = 2.459
hole.DepthType = "ThroughAll"

# Sketch on XY plane
sketch5 = body.newObject("Sketcher::SketchObject", "Sketch004")
sketch5.AttachmentSupport = (doc.getObject("XY_Plane"), [""])
sketch5.MapMode = "FlatFace"
sketch5.addGeometry([
    Part.Circle(Vector(44, 87.5, 0), Vector(0, 0, 1), 1.8),
    Part.Circle(Vector(0, 87.5, 0), Vector(0, 0, 1), 1.8),
    Part.Circle(Vector(-44, 87.5, 0), Vector(0, 0, 1), 1.8),
], False)
sketch5.addConstraint([
    Sketcher.Constraint("Equal", 0, 1),
    Sketcher.Constraint("Equal", 1, 2),
    Sketcher.Constraint("Symmetric", 0, 3, 2, 3, -2),
    Sketcher.Constraint("PointOnObject", 1, 3, -2),
    Sketcher.Constraint("Horizontal", 0, 3, 1, 3),
    Sketcher.Constraint("Diameter", 0, Q("3.5 mm")),
    Sketcher.Constraint("DistanceX", -1, 1, 0, 3, Q("44 mm")),
    Sketcher.Constraint("DistanceY", -1, 1, 0, 3, Q("87.5 mm")),
])
doc.recompute()
hole2 = body.newObject("PartDesign::Hole", "Hole001")
hole2.Profile = sketch5
hole2.ThreadType = "None"
hole2.Diameter = 3.5
hole2.DepthType = "ThroughAll"

# Sketch on XY plane
sketch6 = body.newObject("Sketcher::SketchObject", "Sketch005")
sketch6.AttachmentSupport = (doc.getObject("XY_Plane"), [""])
sketch6.MapMode = "FlatFace"
sketch6.addGeometry([
    Part.Circle(Vector(44, 41.5, 0), Vector(0, 0, 1), 1.6),
    Part.Circle(Vector(44, 68.5, 0), Vector(0, 0, 1), 1.6),
], False)
sketch6.addConstraint([
    Sketcher.Constraint("Equal", 0, 1),
    Sketcher.Constraint("Vertical", 0, 3, 1, 3),
    Sketcher.Constraint("Diameter", 0, Q("3.1 mm")),
    Sketcher.Constraint("DistanceX", -1, 1, 0, 3, Q("44 mm")),
    Sketcher.Constraint("DistanceY", 0, 3, 1, 3, Q("27 mm")),
    Sketcher.Constraint("DistanceY", -1, 1, 0, 3, Q("41.5 mm")),
])
doc.recompute()
hole3 = body.newObject("PartDesign::Hole", "Hole002")
hole3.Profile = sketch6
hole3.ThreadType = "None"
hole3.Diameter = 3.1
hole3.DepthType = "ThroughAll"
doc.recompute()

fillet = body.newObject("PartDesign::Fillet", "Fillet")
fillet.Base = (hole3, edges_at(hole3, [
    (47, 38.95, -1),
    (47, 71.05, -1),
    (3.5, 13.362, -2),
    (-6.53, 29.094, -2),
    (-3.5, 13.362, -2),
    (-7.905, 32.546, -2),
    (-6.237, 51.572, -2),
    (-6.237, 58.428, -2),
    (1.913, 72.544, -2),
    (-60, 32.546, -2),
    (1.313, 80, -2),
    (60, 38.95, -2),
    (49, 38.95, -2),
    (49, 80, -2),
    (52.929, 80, -2),
    (8.145, 27.084, -2),
    (38.738, 37, -2),
    (-53.9, 35.546, -2),
    (60, 72.929, -2),
]))
fillet.Radius = 2
doc.recompute()

mirrored = body.newObject("PartDesign::Mirrored", "Mirrored")
mirrored.TransformMode = "Transform body"
mirrored.MirrorPlane = (doc.getObject("XZ_Plane"), [""])
body.Tip = mirrored
doc.recompute()

chamfer = body.newObject("PartDesign::Chamfer", "Chamfer")
chamfer.Base = (mirrored, edges_at(mirrored, [
    (-65, 71, -2.5),
    (-65, 44, -2.5),
    (-65, -71, -2.5),
    (-65, -44, -2.5),
]))
chamfer.Size = 1

doc.recompute()
